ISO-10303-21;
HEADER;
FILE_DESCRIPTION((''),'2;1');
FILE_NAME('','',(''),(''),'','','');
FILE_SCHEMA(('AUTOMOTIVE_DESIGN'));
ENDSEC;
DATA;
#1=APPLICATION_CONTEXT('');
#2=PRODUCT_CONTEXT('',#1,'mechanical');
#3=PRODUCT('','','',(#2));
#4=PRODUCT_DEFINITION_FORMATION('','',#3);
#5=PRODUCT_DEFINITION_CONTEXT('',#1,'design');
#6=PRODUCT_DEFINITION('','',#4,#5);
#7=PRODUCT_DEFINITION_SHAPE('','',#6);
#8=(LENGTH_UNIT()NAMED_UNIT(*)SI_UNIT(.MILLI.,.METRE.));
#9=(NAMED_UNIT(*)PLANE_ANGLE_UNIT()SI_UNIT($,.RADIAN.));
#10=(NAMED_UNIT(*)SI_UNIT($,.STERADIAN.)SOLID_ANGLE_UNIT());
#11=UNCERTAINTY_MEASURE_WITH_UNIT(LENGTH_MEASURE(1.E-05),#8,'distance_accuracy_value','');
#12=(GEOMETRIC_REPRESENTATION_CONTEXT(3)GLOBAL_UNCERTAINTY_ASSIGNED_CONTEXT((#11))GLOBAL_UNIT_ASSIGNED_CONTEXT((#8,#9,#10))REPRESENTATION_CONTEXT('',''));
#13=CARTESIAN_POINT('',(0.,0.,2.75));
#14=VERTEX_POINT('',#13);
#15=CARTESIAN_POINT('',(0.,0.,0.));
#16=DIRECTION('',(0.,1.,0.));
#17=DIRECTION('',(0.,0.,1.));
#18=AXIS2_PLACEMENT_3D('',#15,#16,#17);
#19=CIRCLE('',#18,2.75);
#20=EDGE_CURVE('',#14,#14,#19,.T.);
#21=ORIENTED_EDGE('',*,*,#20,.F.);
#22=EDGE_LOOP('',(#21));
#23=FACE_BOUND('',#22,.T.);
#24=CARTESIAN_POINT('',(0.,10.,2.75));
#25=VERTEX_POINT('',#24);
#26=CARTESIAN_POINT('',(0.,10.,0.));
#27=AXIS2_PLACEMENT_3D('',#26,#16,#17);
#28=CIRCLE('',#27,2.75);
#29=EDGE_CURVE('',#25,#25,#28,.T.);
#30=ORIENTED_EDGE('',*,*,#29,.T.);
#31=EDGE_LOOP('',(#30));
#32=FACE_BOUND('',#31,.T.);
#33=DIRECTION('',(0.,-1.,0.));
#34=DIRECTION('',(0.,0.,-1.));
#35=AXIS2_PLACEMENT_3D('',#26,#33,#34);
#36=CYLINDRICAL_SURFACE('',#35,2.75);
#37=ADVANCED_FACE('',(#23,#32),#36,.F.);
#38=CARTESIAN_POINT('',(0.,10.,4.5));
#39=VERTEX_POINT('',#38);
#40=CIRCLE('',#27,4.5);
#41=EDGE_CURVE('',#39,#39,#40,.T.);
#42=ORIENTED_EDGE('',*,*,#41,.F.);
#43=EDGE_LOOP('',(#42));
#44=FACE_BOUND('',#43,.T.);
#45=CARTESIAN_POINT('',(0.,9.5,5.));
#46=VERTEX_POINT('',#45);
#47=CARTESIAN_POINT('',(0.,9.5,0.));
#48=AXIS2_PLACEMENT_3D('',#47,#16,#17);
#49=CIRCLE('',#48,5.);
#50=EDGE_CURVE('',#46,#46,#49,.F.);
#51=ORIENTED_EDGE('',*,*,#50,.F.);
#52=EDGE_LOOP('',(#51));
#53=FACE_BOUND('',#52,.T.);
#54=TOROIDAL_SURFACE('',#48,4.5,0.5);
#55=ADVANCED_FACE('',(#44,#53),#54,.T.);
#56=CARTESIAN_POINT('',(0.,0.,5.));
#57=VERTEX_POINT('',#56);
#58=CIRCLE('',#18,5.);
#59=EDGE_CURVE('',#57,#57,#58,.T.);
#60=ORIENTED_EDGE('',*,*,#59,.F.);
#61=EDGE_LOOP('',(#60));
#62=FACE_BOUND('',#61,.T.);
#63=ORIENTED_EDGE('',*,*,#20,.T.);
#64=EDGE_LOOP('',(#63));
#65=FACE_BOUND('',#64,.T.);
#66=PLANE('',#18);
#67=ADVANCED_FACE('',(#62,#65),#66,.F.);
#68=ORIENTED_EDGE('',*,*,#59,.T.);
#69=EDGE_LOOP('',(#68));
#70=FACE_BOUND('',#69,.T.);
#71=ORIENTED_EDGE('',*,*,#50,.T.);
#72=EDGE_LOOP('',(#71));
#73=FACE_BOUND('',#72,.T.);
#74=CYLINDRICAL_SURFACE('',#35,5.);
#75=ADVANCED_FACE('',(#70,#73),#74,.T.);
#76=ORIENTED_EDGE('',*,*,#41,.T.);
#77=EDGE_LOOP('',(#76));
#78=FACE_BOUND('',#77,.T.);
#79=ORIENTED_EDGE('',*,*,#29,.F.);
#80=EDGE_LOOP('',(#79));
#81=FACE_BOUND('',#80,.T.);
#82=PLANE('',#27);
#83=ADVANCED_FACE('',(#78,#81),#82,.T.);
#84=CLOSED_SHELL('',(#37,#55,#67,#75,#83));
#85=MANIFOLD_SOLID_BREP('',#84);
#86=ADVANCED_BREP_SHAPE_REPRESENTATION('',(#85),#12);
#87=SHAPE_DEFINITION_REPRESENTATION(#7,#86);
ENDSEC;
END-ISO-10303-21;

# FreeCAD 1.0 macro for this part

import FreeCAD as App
import Part
import Sketcher
from FreeCAD import Vector


def edges_at(feature, points):
    """Names of the edges that pass closest to the given points."""
    edges = feature.Shape.Edges
    near = lambda p: min(range(len(edges)), key=lambda i: edges[i].distToShape(Part.Vertex(*p))[0])
    return sorted({f"Edge{near(p) + 1}" for p in points})

doc = App.newDocument("Part")
body = doc.addObject("PartDesign::Body", "Body")

# Sketch on XZ plane
sketch1 = doc.addObject("Sketcher::SketchObject", "Sketch")
body.addObject(sketch1)
sketch1.AttachmentSupport = (doc.XZ_Plane, [""])
sketch1.MapMode = "FlatFace"
sketch1.addGeometry([
    Part.Circle(Vector(0, 0, 0), Vector(0, 0, 1), 5),
    Part.Circle(Vector(0, 0, 0), Vector(0, 0, 1), 2.8),
], False)
sketch1.addConstraint([
    Sketcher.Constraint("Coincident", 0, 3, -1, 1),
    Sketcher.Constraint("Coincident", 1, 3, -1, 1),
    Sketcher.Constraint("Diameter", 0, 10.0),
    Sketcher.Constraint("Diameter", 1, 5.5),
])
pad1 = doc.addObject("PartDesign::Pad", "Pad")
body.addObject(pad1)
pad1.Profile = sketch1
pad1.Length = 10
pad1.Reversed = True
doc.recompute()

fillet = doc.addObject("PartDesign::Fillet", "Fillet")
body.addObject(fillet)
fillet.Base = (pad1, edges_at(pad1, [(-5, 10, 0)]))
fillet.Radius = 0.5

doc.recompute()
